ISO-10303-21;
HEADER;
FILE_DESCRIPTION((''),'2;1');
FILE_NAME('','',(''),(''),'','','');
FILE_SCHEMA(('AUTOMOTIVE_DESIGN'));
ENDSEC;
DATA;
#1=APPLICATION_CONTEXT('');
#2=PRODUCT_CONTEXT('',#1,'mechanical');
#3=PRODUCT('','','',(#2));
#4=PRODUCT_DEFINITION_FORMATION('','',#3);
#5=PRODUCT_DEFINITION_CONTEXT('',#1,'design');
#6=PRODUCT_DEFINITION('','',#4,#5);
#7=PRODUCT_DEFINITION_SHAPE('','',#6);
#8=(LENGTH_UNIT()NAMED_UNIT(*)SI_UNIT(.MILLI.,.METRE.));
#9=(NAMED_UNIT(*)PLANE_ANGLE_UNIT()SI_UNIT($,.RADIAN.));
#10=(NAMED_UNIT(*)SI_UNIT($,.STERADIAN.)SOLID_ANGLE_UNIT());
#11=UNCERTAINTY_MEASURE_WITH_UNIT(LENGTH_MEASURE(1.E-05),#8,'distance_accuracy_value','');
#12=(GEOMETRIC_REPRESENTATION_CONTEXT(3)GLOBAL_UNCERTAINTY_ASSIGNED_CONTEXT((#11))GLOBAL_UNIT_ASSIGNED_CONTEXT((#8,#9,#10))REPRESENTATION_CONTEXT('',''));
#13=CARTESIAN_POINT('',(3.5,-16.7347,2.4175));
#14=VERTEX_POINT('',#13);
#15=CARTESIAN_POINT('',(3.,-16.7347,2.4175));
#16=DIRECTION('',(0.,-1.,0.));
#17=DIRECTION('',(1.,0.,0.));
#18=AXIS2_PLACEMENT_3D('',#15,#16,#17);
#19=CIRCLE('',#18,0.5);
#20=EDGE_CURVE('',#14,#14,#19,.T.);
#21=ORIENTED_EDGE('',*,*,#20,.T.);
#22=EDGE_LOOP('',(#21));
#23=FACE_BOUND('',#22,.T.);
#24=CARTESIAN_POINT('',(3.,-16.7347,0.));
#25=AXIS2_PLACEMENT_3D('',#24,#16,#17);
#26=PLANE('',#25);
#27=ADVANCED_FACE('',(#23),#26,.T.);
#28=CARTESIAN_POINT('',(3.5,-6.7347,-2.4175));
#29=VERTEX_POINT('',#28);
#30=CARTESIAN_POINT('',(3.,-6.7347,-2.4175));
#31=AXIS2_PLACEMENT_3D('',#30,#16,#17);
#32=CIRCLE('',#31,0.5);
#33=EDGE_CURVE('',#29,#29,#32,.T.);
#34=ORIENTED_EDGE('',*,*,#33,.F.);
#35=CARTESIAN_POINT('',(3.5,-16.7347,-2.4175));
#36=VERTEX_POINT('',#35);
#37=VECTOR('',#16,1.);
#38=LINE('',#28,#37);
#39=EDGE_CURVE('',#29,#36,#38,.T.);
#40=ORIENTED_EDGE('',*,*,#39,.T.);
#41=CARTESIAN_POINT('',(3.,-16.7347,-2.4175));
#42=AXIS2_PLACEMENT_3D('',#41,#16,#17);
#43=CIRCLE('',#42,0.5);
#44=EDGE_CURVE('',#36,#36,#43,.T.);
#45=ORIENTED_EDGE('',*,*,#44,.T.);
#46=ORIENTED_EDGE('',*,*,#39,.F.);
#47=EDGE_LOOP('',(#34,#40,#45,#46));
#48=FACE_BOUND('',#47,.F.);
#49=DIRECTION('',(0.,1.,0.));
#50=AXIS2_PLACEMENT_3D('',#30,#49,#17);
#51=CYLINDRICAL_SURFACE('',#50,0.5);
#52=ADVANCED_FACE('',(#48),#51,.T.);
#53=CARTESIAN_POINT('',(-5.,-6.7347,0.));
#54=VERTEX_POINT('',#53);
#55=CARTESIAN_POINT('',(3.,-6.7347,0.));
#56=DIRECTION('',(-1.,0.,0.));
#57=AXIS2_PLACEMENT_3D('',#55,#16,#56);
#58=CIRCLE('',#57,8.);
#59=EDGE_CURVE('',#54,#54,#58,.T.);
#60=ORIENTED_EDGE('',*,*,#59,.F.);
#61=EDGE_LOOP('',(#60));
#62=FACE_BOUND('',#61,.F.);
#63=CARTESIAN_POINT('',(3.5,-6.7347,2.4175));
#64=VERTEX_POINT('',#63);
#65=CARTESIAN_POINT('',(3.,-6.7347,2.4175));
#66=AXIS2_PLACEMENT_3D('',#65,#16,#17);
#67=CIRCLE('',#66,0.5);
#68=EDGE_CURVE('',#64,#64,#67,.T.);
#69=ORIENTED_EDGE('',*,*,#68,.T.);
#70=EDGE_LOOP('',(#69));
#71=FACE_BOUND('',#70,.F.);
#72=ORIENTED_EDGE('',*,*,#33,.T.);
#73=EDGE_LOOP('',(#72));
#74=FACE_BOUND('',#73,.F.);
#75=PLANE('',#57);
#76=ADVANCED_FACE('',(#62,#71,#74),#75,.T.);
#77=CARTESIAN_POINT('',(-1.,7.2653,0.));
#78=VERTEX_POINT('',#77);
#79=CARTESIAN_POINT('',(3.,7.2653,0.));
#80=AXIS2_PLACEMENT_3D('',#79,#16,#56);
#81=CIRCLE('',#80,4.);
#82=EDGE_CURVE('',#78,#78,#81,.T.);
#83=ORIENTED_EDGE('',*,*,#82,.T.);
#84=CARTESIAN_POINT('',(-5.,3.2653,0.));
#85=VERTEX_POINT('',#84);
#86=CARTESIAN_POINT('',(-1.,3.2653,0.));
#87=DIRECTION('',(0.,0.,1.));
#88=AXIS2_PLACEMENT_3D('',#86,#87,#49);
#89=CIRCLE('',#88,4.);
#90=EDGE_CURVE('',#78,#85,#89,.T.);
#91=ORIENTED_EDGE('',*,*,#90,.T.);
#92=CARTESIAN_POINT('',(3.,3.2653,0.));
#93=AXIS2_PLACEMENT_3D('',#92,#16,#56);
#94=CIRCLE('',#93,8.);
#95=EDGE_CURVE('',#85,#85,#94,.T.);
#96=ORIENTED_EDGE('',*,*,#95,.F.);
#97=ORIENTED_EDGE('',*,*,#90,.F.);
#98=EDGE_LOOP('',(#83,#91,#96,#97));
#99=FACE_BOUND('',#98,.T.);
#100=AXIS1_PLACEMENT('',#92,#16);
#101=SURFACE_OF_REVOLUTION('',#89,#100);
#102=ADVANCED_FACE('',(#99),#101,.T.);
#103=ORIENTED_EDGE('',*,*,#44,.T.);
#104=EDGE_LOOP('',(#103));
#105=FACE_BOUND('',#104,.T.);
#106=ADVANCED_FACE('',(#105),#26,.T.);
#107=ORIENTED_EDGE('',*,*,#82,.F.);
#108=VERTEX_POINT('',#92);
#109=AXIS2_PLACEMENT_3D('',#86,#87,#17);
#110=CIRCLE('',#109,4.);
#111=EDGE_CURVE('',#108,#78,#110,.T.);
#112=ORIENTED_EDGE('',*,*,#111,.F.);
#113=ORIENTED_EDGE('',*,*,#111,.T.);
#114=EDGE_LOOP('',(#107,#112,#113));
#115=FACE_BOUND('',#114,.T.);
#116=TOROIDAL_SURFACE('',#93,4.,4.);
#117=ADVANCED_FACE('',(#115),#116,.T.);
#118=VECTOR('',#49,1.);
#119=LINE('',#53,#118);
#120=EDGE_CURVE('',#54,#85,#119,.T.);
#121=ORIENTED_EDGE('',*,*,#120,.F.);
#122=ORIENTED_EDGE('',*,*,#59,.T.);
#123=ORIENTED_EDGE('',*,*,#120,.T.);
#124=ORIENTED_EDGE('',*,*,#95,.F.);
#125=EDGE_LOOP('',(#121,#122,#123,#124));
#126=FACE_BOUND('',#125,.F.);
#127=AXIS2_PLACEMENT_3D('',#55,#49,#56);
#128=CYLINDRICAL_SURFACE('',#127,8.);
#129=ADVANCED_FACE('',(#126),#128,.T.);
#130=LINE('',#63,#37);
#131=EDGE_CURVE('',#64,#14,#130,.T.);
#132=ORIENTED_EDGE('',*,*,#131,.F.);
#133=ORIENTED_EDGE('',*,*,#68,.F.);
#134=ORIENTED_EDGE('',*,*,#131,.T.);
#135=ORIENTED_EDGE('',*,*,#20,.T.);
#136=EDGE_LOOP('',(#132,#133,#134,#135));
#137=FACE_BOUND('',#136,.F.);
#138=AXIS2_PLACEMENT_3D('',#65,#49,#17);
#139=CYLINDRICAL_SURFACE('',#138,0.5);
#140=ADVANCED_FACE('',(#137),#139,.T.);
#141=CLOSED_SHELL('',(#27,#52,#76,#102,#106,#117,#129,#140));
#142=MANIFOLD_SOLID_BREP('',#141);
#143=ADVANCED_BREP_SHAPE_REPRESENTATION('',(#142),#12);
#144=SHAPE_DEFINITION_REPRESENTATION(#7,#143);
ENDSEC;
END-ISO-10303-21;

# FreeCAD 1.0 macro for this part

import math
import FreeCAD as App
import Part
import Sketcher
from FreeCAD import Vector
Q = App.Units.Quantity

doc = App.newDocument("Part")
params = doc.addObject("Spreadsheet::Sheet", "Params")
for row, (alias, value) in enumerate([
    ("sketch1_radius", "4 mm"),
    ("sketch1_height", "10 mm"),
    ("revolution_angle", "360 deg"),
    ("sketch2_diameter", "1 mm"),
    ("pad1_length", "10 mm"),
], start=1):
    params.set(f"A{row}", alias)
    params.set(f"B{row}", "=" + value)
    params.setAlias(f"B{row}", alias)

body = doc.addObject("PartDesign::Body", "Body")

sketch1 = body.newObject("Sketcher::SketchObject", "Sketch")
sketch1.AttachmentSupport = (doc.getObject("XY_Plane"), [""])
sketch1.MapMode = "FlatFace"
sketch1.addGeometry([
    Part.LineSegment(Vector(-5, -6.7, 0), Vector(3, -6.7, 0)),
    Part.LineSegment(Vector(3, -6.7, 0), Vector(3, 3.3, 0)),
    Part.ArcOfCircle(Part.Circle(Vector(-1, 3.3, 0), Vector(0, 0, 1), 4), math.radians(0), math.radians(180)),
    Part.LineSegment(Vector(-5, 3.3, 0), Vector(-5, -6.7, 0)),
], False)
sketch1.addGeometry(Part.LineSegment(Vector(3, 3.3, 0), Vector(3, -6.7, 0)), True)
sketch1.addConstraint([
    Sketcher.Constraint("Coincident", 0, 2, 1, 1),
    Sketcher.Constraint("Tangent", 1, 2, 2, 1),
    Sketcher.Constraint("Tangent", 2, 2, 3, 1),
    Sketcher.Constraint("Coincident", 3, 2, 0, 1),
    Sketcher.Constraint("Horizontal", 0),
    Sketcher.Constraint("Vertical", 1),
    Sketcher.Constraint("Vertical", 3),
    Sketcher.Constraint("Vertical", 4),
    Sketcher.Constraint("Coincident", 4, 1, 1, 2),
    Sketcher.Constraint("Horizontal", 3, 2, 4, 2),
    Sketcher.Constraint("Radius", 2, Q("4 mm")),
    Sketcher.Constraint("DistanceY", 1, 1, 1, 2, Q("10 mm")),
    Sketcher.Constraint("DistanceX", 2, 3, -1, 1, Q("1 mm")),
    Sketcher.Constraint("DistanceY", -1, 1, 2, 3, Q("3.2653 mm")),
])
sketch1.setExpression("Constraints[10]", "Params.sketch1_radius")
sketch1.setExpression("Constraints[11]", "Params.sketch1_height")
revolution = body.newObject("PartDesign::Revolution", "Revolution")
revolution.Profile = sketch1
revolution.ReferenceAxis = (sketch1, ["Axis0"])
revolution.setExpression("Angle", "Params.revolution_angle")

sketch2 = body.newObject("Sketcher::SketchObject", "Sketch001")
sketch2.AttachmentSupport = (doc.getObject("XZ_Plane"), [""])
sketch2.MapMode = "FlatFace"
sketch2.AttachmentOffset = App.Placement(Vector(0, 0, 6.7347), App.Rotation())
sketch2.addGeometry([
    Part.Circle(Vector(3, 2.4, 0), Vector(0, 0, 1), 0.5),
    Part.Circle(Vector(3, -2.4, 0), Vector(0, 0, 1), 0.5),
], False)
sketch2.addConstraint([
    Sketcher.Constraint("Equal", 0, 1),
    Sketcher.Constraint("Symmetric", 0, 3, 1, 3, -1),
    Sketcher.Constraint("Diameter", 0, Q("1 mm")),
    Sketcher.Constraint("DistanceX", -1, 1, 0, 3, Q("3 mm")),
    Sketcher.Constraint("DistanceY", 1, 3, 0, 3, Q("4.835 mm")),
])
sketch2.setExpression("Constraints[2]", "Params.sketch2_diameter")
pad1 = body.newObject("PartDesign::Pad", "Pad")
pad1.Profile = sketch2
pad1.setExpression("Length", "Params.pad1_length")

doc.recompute()
